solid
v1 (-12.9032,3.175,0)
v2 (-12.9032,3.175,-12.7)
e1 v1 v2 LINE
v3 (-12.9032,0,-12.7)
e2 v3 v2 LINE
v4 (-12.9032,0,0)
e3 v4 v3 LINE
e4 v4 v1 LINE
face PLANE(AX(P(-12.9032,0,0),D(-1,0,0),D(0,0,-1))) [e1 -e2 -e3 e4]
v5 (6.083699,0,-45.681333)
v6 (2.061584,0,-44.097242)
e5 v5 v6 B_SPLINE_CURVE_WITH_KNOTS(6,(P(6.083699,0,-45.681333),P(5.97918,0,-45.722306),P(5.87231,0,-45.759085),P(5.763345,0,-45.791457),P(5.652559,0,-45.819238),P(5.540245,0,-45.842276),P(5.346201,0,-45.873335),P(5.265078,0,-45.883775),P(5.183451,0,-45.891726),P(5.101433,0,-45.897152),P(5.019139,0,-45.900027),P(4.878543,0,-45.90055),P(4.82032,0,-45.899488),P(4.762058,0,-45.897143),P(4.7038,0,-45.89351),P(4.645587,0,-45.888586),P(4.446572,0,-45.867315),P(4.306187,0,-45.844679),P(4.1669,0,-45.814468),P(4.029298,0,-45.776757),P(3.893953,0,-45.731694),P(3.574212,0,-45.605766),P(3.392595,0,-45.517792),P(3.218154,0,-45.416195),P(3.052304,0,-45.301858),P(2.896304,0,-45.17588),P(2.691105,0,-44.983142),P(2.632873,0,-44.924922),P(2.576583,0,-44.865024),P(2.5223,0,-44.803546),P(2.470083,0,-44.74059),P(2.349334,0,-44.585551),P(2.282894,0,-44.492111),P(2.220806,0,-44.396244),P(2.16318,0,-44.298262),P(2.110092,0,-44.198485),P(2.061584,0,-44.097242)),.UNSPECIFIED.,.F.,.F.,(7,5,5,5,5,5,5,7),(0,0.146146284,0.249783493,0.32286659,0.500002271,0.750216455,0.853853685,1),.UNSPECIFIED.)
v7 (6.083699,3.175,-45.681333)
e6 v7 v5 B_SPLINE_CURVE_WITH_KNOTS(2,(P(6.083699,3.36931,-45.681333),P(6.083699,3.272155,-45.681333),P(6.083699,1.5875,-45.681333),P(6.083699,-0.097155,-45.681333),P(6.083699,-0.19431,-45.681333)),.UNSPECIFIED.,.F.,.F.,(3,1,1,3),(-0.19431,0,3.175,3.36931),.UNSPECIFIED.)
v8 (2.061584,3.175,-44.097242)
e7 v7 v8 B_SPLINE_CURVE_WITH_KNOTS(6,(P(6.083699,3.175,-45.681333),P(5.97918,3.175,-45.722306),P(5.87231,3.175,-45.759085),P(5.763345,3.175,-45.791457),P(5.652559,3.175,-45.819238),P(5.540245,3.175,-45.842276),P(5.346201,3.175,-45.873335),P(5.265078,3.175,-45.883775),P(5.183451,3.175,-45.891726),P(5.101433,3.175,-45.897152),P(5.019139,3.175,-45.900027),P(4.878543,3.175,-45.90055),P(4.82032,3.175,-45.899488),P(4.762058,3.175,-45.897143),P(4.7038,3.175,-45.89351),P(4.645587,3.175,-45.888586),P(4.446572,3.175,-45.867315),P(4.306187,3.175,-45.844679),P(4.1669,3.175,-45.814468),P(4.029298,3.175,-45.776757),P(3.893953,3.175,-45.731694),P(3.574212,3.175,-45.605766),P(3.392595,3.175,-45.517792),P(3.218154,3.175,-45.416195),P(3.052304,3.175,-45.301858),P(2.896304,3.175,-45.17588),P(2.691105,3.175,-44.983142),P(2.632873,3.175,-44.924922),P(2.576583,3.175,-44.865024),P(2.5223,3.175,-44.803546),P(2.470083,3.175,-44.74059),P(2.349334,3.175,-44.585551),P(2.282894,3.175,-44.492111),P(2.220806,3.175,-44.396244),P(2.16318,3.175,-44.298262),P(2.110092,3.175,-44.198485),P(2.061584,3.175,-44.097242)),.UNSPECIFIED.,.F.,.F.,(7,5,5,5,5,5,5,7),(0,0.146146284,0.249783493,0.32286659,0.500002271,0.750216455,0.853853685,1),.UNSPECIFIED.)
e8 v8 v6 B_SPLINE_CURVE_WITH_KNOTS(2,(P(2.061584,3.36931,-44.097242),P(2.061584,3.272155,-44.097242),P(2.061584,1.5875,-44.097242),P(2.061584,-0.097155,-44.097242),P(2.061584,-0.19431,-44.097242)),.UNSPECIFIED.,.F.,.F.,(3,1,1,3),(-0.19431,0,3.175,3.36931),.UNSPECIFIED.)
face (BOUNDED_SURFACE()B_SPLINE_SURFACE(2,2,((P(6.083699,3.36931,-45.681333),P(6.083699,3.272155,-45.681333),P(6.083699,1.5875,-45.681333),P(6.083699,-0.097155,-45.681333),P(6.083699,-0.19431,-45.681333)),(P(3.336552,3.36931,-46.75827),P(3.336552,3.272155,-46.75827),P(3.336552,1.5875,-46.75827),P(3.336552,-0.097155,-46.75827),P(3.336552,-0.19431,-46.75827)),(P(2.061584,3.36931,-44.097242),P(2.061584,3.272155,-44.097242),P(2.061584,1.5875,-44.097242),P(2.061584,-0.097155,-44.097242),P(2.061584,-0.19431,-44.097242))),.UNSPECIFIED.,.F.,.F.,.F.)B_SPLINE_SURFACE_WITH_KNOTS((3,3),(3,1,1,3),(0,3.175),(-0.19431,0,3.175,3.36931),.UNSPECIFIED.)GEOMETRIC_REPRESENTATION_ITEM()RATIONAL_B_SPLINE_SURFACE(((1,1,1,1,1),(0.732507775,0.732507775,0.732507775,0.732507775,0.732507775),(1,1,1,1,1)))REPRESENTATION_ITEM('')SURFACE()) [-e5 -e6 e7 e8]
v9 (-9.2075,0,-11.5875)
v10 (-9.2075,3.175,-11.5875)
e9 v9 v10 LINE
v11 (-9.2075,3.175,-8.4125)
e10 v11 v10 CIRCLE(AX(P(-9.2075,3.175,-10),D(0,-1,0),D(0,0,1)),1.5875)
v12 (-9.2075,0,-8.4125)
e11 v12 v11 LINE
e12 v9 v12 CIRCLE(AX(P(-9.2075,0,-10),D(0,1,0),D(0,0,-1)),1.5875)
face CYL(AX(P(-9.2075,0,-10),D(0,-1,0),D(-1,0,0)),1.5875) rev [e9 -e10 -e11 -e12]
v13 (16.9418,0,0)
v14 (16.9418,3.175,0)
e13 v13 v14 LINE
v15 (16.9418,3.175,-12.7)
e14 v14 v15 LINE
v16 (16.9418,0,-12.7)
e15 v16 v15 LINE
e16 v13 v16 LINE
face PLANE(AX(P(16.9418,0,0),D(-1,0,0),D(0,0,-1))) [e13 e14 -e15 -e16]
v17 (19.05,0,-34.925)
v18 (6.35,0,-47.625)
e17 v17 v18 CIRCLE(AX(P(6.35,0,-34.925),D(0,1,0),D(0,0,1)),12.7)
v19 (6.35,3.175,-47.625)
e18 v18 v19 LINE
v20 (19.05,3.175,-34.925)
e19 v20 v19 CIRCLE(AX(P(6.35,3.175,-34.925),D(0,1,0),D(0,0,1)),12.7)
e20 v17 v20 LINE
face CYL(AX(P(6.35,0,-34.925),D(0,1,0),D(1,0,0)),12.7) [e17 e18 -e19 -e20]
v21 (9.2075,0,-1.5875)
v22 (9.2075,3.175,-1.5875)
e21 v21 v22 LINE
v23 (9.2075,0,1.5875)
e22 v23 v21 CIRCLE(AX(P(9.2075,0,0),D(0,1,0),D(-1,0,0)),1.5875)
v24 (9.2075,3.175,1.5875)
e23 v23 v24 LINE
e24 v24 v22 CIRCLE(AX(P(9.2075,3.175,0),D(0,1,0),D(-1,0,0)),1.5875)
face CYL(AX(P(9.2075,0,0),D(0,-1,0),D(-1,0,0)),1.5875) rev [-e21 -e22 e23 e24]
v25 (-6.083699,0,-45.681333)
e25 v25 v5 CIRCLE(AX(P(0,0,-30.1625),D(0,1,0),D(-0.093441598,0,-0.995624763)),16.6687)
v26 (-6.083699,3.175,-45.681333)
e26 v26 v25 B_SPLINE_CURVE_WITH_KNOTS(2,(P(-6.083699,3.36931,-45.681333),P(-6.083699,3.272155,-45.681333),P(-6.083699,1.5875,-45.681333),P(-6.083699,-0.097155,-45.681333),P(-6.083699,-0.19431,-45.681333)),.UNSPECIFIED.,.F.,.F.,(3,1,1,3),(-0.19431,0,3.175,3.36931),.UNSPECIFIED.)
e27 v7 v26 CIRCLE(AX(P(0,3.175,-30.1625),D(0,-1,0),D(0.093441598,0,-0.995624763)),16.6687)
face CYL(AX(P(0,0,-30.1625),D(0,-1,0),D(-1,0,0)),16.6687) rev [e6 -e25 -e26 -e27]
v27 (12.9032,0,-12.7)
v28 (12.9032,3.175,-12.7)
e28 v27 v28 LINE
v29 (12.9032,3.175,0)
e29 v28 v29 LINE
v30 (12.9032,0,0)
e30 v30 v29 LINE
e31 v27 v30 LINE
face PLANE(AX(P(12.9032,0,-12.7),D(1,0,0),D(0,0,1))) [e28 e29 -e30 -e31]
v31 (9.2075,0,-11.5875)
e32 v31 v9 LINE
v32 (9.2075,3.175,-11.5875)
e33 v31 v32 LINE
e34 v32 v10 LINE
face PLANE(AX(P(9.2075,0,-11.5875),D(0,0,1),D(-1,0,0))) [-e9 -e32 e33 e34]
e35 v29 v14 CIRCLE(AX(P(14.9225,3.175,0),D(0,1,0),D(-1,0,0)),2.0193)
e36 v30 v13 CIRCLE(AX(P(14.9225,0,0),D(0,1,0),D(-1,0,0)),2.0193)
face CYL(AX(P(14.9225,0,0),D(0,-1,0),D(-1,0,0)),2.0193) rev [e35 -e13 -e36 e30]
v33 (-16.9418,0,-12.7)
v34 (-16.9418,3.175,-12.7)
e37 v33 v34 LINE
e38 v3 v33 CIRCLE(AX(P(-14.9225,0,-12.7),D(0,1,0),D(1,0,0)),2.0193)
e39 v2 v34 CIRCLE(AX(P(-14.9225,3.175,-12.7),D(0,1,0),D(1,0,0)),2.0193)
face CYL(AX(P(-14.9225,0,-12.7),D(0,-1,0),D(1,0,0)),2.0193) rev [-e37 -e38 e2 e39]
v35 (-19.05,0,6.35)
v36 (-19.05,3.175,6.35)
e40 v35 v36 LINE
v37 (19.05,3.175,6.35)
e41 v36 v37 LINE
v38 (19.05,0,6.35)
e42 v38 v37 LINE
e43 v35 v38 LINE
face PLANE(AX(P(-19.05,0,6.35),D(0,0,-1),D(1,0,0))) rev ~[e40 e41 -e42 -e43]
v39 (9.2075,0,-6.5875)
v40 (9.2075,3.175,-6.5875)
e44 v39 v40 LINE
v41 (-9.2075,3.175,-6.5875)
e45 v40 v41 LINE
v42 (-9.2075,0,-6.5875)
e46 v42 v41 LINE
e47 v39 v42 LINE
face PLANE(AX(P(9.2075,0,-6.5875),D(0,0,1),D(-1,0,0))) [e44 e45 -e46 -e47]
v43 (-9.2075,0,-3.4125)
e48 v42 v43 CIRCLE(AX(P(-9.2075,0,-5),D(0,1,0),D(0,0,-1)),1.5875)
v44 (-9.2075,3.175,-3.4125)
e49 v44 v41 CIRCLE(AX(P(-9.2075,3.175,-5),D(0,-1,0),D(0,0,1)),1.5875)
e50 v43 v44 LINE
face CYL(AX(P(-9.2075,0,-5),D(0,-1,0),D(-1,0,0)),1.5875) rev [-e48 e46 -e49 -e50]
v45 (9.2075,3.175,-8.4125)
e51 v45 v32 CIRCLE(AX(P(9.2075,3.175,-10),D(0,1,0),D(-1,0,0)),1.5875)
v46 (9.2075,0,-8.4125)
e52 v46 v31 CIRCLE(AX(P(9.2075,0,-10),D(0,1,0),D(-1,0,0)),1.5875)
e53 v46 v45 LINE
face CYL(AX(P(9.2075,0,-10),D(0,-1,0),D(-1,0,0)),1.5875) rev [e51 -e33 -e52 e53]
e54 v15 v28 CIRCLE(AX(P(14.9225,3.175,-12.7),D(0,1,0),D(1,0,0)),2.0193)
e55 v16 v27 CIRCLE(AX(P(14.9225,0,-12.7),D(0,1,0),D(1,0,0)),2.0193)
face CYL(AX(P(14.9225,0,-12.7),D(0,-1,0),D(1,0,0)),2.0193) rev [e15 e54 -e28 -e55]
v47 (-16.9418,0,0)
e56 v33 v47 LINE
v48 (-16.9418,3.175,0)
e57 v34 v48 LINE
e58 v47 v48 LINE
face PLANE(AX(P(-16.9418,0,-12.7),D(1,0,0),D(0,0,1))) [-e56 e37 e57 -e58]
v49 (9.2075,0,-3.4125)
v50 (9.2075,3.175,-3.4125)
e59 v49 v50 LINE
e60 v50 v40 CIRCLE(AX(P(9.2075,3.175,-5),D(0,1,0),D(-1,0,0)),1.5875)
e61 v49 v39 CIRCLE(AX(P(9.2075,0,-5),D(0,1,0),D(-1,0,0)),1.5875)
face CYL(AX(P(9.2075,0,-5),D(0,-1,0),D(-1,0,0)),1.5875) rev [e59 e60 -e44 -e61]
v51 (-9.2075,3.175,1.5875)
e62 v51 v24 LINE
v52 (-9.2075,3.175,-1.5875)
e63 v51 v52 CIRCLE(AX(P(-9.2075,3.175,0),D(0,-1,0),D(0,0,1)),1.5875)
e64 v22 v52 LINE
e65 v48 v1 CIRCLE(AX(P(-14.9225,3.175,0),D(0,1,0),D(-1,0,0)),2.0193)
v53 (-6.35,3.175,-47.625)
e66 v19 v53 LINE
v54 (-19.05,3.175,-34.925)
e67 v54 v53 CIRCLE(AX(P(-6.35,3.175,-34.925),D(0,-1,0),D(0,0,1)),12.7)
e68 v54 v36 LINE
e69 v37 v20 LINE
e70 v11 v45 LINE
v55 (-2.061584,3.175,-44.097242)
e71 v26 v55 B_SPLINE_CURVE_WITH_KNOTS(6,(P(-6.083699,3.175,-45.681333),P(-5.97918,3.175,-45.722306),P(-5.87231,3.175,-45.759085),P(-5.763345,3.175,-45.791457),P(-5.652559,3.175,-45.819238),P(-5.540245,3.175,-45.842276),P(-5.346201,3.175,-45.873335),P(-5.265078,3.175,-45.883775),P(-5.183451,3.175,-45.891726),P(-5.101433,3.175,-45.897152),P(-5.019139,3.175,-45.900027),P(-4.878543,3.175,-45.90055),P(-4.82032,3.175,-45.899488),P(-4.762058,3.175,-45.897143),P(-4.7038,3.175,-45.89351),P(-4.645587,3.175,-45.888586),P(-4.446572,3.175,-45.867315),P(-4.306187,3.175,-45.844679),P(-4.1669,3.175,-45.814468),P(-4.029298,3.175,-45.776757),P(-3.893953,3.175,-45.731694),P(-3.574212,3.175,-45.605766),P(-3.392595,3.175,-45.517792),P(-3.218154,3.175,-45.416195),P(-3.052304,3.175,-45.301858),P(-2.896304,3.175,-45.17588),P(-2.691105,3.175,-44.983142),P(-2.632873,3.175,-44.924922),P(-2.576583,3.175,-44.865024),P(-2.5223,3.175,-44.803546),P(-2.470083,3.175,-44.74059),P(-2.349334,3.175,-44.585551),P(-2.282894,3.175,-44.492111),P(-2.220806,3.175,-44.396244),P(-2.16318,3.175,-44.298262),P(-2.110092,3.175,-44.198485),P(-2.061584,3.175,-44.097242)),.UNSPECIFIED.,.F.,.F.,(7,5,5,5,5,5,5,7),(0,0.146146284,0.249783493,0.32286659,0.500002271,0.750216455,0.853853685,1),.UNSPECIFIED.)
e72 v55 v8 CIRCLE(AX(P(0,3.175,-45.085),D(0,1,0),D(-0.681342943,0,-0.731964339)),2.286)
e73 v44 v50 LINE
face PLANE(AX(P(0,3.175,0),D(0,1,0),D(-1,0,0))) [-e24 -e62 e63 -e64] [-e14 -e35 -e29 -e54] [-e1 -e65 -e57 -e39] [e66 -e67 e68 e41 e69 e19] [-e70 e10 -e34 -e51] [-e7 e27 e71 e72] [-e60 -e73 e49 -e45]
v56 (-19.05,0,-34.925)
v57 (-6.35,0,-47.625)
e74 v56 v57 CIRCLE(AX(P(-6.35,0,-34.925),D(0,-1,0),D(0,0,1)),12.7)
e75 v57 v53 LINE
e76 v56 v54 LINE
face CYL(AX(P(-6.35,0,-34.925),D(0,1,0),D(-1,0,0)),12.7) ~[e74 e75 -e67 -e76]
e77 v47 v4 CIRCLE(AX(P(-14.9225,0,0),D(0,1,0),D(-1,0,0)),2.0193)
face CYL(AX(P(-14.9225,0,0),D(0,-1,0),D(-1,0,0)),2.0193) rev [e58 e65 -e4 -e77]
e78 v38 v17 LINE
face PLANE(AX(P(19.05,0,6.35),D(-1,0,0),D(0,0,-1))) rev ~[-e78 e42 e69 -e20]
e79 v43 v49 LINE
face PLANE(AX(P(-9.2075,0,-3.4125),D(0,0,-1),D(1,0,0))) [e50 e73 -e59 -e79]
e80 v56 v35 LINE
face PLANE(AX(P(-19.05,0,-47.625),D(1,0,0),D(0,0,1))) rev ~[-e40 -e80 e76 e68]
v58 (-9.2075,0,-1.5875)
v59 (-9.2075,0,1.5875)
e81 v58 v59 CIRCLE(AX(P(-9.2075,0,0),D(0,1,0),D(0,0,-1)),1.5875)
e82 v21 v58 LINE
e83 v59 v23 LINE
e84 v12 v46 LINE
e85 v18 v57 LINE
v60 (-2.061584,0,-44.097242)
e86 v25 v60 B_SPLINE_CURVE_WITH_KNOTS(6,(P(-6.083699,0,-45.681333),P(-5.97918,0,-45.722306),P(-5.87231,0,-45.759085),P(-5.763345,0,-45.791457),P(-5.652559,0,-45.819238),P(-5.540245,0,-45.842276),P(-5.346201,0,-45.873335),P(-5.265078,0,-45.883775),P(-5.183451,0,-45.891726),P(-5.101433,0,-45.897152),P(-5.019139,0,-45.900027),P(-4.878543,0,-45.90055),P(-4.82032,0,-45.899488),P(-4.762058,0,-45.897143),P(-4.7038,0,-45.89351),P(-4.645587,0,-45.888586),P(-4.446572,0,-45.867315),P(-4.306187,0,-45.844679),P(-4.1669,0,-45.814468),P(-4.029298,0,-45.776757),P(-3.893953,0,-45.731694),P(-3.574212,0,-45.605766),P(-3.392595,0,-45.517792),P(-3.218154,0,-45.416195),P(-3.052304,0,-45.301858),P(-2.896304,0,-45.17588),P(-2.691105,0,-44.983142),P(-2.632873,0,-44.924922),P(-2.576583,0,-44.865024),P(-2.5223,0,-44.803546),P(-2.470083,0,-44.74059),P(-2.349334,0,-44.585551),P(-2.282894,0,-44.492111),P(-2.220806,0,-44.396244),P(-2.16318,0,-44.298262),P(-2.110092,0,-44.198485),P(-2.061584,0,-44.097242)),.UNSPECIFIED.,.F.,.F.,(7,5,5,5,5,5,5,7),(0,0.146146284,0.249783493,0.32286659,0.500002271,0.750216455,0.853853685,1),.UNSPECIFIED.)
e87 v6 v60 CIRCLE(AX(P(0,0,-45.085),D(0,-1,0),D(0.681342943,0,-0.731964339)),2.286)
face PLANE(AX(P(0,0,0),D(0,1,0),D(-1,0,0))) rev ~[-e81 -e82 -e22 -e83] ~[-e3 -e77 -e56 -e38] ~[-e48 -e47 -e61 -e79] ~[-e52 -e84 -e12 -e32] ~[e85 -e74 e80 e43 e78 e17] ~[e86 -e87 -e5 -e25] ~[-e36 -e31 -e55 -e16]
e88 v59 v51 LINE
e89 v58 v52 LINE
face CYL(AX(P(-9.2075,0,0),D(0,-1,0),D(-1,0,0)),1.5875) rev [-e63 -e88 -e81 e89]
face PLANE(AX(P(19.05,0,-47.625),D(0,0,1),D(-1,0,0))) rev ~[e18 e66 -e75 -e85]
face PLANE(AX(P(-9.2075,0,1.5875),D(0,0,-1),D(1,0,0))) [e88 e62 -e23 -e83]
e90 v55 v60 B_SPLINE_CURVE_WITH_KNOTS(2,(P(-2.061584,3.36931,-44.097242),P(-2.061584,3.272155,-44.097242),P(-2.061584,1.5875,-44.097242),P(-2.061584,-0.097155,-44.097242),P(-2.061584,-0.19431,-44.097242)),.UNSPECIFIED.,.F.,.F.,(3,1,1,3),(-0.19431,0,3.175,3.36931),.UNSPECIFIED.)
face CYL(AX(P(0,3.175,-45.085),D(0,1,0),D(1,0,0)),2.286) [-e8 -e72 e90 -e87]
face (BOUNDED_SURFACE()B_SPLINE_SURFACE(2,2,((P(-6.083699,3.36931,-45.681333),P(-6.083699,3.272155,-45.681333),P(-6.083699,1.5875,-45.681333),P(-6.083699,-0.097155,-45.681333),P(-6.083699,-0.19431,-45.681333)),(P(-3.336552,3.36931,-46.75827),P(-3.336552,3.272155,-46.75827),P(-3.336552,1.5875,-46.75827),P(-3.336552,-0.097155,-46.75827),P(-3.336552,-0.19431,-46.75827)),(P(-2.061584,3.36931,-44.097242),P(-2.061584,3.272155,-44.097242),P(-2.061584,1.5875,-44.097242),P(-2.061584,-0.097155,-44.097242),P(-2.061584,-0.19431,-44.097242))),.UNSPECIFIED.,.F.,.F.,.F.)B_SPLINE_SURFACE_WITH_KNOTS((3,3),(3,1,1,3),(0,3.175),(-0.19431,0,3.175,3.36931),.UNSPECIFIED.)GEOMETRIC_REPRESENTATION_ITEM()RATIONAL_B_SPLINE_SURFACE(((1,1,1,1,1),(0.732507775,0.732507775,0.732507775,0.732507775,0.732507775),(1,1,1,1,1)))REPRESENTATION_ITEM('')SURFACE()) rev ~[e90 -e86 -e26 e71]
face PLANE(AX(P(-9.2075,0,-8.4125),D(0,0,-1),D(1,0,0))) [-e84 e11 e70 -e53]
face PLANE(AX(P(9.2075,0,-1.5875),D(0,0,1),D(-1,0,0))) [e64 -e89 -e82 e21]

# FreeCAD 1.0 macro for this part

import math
import FreeCAD as App
import Part
import Sketcher

V = App.Vector
Q = App.Units.Quantity


def edges_at(feature, points):
    """Names of the edges that pass closest to the given points."""
    edges = feature.Shape.Edges
    near = lambda p: min(range(len(edges)), key=lambda i: edges[i].distToShape(Part.Vertex(*p))[0])
    return sorted({f"Edge{near(p) + 1}" for p in points})


def add_polygon(sketch, points):
    """Adds a closed chain of lines whose ends are joined by coincident constraints."""
    first, n = sketch.GeometryCount, len(points)
    for a, b in zip(points, points[1:] + points[:1]):
        sketch.addGeometry(Part.LineSegment(App.Vector(*a, 0), App.Vector(*b, 0)), False)
    for i in range(n):
        sketch.addConstraint(Sketcher.Constraint("Coincident", first + i, 2, first + (i + 1) % n, 1))

doc = App.newDocument("Part")
body = doc.addObject("PartDesign::Body", "Body")

# Sketch on XZ plane
sketch1 = body.newObject("Sketcher::SketchObject", "Sketch")
sketch1.AttachmentSupport = (doc.getObject("XZ_Plane"), [""])
sketch1.MapMode = "FlatFace"
add_polygon(sketch1, [(-19.1, -47.6), (-19.1, 6.3), (19.1, 6.3), (19.1, -47.6)])  # lines 0-3
sketch1.addGeometry(Part.Circle(V(0, -30.2, 0), V(0, 0, 1), 16.7), False)  # 4
sketch1.addGeometry(Part.LineSegment(V(16.9, -12.7, 0), V(16.9, 0, 0)), False)  # 5
sketch1.addGeometry(Part.ArcOfCircle(Part.Circle(V(14.9, 0, 0), V(0, 0, 1), 2), math.radians(0), math.radians(180)), False)  # 6
sketch1.addGeometry(Part.LineSegment(V(12.9, 0, 0), V(12.9, -12.7, 0)), False)  # 7
sketch1.addGeometry(Part.ArcOfCircle(Part.Circle(V(14.9, -12.7, 0), V(0, 0, 1), 2), math.radians(180), math.radians(360)), False)  # 8
sketch1.addGeometry(Part.LineSegment(V(-9.2, -11.6, 0), V(9.2, -11.6, 0)), False)  # 9
sketch1.addGeometry(Part.ArcOfCircle(Part.Circle(V(9.2, -10, 0), V(0, 0, 1), 1.6), math.radians(-90), math.radians(90)), False)  # 10
sketch1.addGeometry(Part.LineSegment(V(9.2, -8.4, 0), V(-9.2, -8.4, 0)), False)  # 11
sketch1.addGeometry(Part.ArcOfCircle(Part.Circle(V(-9.2, -10, 0), V(0, 0, 1), 1.6), math.radians(90), math.radians(270)), False)  # 12
sketch1.addGeometry(Part.LineSegment(V(-9.2, -6.6, 0), V(9.2, -6.6, 0)), False)  # 13
sketch1.addGeometry(Part.ArcOfCircle(Part.Circle(V(9.2, -5, 0), V(0, 0, 1), 1.6), math.radians(-90), math.radians(90)), False)  # 14
sketch1.addGeometry(Part.LineSegment(V(9.2, -3.4, 0), V(-9.2, -3.4, 0)), False)  # 15
sketch1.addGeometry(Part.ArcOfCircle(Part.Circle(V(-9.2, -5, 0), V(0, 0, 1), 1.6), math.radians(90), math.radians(270)), False)  # 16
sketch1.addGeometry(Part.LineSegment(V(-9.2, -1.6, 0), V(9.2, -1.6, 0)), False)  # 17
sketch1.addGeometry(Part.ArcOfCircle(Part.Circle(V(9.2, 0, 0), V(0, 0, 1), 1.6), math.radians(-90), math.radians(90)), False)  # 18
sketch1.addGeometry(Part.LineSegment(V(9.2, 1.6, 0), V(-9.2, 1.6, 0)), False)  # 19
sketch1.addGeometry(Part.ArcOfCircle(Part.Circle(V(-9.2, 0, 0), V(0, 0, 1), 1.6), math.radians(90), math.radians(270)), False)  # 20
sketch1.addGeometry(Part.LineSegment(V(-12.9, -12.7, 0), V(-12.9, 0, 0)), False)  # 21
sketch1.addGeometry(Part.ArcOfCircle(Part.Circle(V(-14.9, 0, 0), V(0, 0, 1), 2), math.radians(0), math.radians(180)), False)  # 22
sketch1.addGeometry(Part.LineSegment(V(-16.9, 0, 0), V(-16.9, -12.7, 0)), False)  # 23
sketch1.addGeometry(Part.ArcOfCircle(Part.Circle(V(-14.9, -12.7, 0), V(0, 0, 1), 2), math.radians(180), math.radians(360)), False)  # 24
sketch1.addConstraint([
    Sketcher.Constraint("Tangent", 5, 2, 6, 1),
    Sketcher.Constraint("Tangent", 6, 2, 7, 1),
    Sketcher.Constraint("Tangent", 7, 2, 8, 1),
    Sketcher.Constraint("Tangent", 8, 2, 5, 1),
    Sketcher.Constraint("Tangent", 9, 2, 10, 1),
    Sketcher.Constraint("Tangent", 10, 2, 11, 1),
    Sketcher.Constraint("Tangent", 11, 2, 12, 1),
    Sketcher.Constraint("Tangent", 12, 2, 9, 1),
    Sketcher.Constraint("Tangent", 13, 2, 14, 1),
    Sketcher.Constraint("Tangent", 14, 2, 15, 1),
    Sketcher.Constraint("Tangent", 15, 2, 16, 1),
    Sketcher.Constraint("Tangent", 16, 2, 13, 1),
    Sketcher.Constraint("Tangent", 17, 2, 18, 1),
    Sketcher.Constraint("Tangent", 18, 2, 19, 1),
    Sketcher.Constraint("Tangent", 19, 2, 20, 1),
    Sketcher.Constraint("Tangent", 20, 2, 17, 1),
    Sketcher.Constraint("Tangent", 21, 2, 22, 1),
    Sketcher.Constraint("Tangent", 22, 2, 23, 1),
    Sketcher.Constraint("Tangent", 23, 2, 24, 1),
    Sketcher.Constraint("Tangent", 24, 2, 21, 1),
    Sketcher.Constraint("Vertical", 0),
    Sketcher.Constraint("Horizontal", 1),
    Sketcher.Constraint("Vertical", 2),
    Sketcher.Constraint("Horizontal", 3),
    Sketcher.Constraint("Vertical", 5),
    Sketcher.Constraint("Vertical", 7),
    Sketcher.Constraint("Horizontal", 9),
    Sketcher.Constraint("Horizontal", 11),
    Sketcher.Constraint("Horizontal", 13),
    Sketcher.Constraint("Horizontal", 15),
    Sketcher.Constraint("Horizontal", 17),
    Sketcher.Constraint("Horizontal", 19),
    Sketcher.Constraint("Vertical", 21),
    Sketcher.Constraint("Vertical", 23),
    Sketcher.Constraint("Equal", 12, 14),
    Sketcher.Constraint("Equal", 16, 18),
    Sketcher.Constraint("Equal", 8, 22),
    Sketcher.Constraint("Symmetric", 18, 3, 20, 3, -1, 1),
    Sketcher.Constraint("Symmetric", 6, 3, 22, 3, -1, 1),
    Sketcher.Constraint("PointOnObject", 4, 3, -2),
    Sketcher.Constraint("PointOnObject", 6, 3, -1),
    Sketcher.Constraint("Horizontal", 8, 3, 24, 3),
    Sketcher.Constraint("Vertical", 10, 3, 14, 3),
    Sketcher.Constraint("Vertical", 12, 3, 16, 3),
    Sketcher.Constraint("Vertical", 14, 3, 18, 3),
    Sketcher.Constraint("Vertical", 16, 3, 20, 3),
    Sketcher.Constraint("Diameter", 4, Q("1.3125 in")),
    Sketcher.Constraint("DistanceX", 1, 1, 1, 2, Q("1.5 in")),
    Sketcher.Constraint("DistanceY", 5, 1, 5, 2, Q("0.5 in")),
    Sketcher.Constraint("Radius", 10, Q("0.0625 in")),
    Sketcher.Constraint("Radius", 6, Q("0.0795 in")),
    Sketcher.Constraint("DistanceX", 9, 1, 9, 2, Q("0.725 in")),
    Sketcher.Constraint("DistanceY", 0, 1, 0, 2, Q("2.125 in")),
    Sketcher.Constraint("DistanceY", -1, 1, 0, 2, Q("0.25 in")),
    Sketcher.Constraint("DistanceY", 4, 3, 8, 3, Q("0.6875 in")),
    Sketcher.Constraint("DistanceY", 14, 3, -1, 1, 5.0),
    Sketcher.Constraint("DistanceX", 0, 2, -1, 1, Q("0.75 in")),
    Sketcher.Constraint("DistanceX", 12, 3, 8, 3, Q("0.95 in")),
    Sketcher.Constraint("DistanceY", 10, 3, 14, 3, 5.0),
])
pad1 = body.newObject("PartDesign::Pad", "Pad")
pad1.Profile = sketch1
pad1.Length = Q("0.125 in")
pad1.Reversed = True

# Sketch on XZ plane
sketch2 = body.newObject("Sketcher::SketchObject", "Sketch001")
sketch2.AttachmentSupport = (doc.getObject("XZ_Plane"), [""])
sketch2.MapMode = "FlatFace"
sketch2.AttachmentOffset = App.Placement(V(0, 0, -0.125 * 25.4), App.Rotation())
sketch2.addGeometry(Part.Circle(V(0, -45.1, 0), V(0, 0, 1), 2.3), False)
sketch2.addConstraint([
    Sketcher.Constraint("PointOnObject", 0, 3, -2),
    Sketcher.Constraint("Diameter", 0, Q("0.18 in")),
    Sketcher.Constraint("DistanceY", 0, 3, -1, 1, Q("1.775 in")),
])
pad2 = body.newObject("PartDesign::Pad", "Pad001")
pad2.Profile = sketch2
pad2.Length = Q("0.125 in")
doc.recompute()

fillet = body.newObject("PartDesign::Fillet", "Fillet")
fillet.Base = (pad2, edges_at(pad2, [(-1.558, 1.587, -46.758), (1.558, 1.587, -46.758)]))
fillet.Radius = Q("0.125 in")
doc.recompute()

fillet2 = body.newObject("PartDesign::Fillet", "Fillet001")
fillet2.Base = (fillet, edges_at(fillet, [(-19.05, 1.587, -47.625), (19.05, 1.587, -47.625)]))
fillet2.Radius = Q("0.5 in")

doc.recompute()
